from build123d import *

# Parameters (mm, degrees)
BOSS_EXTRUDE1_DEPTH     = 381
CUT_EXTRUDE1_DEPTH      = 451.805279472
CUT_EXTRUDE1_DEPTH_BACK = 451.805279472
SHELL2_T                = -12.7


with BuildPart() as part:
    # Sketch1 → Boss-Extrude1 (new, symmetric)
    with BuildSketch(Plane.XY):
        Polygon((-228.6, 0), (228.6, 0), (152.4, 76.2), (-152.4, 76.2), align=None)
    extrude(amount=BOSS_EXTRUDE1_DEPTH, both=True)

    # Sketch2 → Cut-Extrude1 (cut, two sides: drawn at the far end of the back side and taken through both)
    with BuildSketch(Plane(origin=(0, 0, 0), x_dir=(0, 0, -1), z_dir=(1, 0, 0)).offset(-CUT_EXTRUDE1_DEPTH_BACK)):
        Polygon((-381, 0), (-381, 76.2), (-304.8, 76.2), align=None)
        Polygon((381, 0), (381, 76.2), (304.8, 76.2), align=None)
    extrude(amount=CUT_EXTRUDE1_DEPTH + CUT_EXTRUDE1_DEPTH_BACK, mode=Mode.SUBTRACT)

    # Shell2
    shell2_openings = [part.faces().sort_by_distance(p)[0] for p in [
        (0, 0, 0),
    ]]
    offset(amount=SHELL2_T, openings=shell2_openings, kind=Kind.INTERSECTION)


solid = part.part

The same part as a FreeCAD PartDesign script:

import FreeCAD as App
import Part
import Sketcher

V = App.Vector
Q = App.Units.Quantity


def faces_at(feature, points):
    """Names of the faces that lie closest to the given points."""
    faces = feature.Shape.Faces
    near = lambda p: min(range(len(faces)), key=lambda i: faces[i].distToShape(Part.Vertex(*p))[0])
    return sorted({f"Face{near(p) + 1}" for p in points})


def add_polygon(sketch, points):
    """Adds a closed chain of lines whose ends are joined by coincident constraints."""
    first, n = sketch.GeometryCount, len(points)
    for a, b in zip(points, points[1:] + points[:1]):
        sketch.addGeometry(Part.LineSegment(App.Vector(*a, 0), App.Vector(*b, 0)), False)
    for i in range(n):
        sketch.addConstraint(Sketcher.Constraint("Coincident", first + i, 2, first + (i + 1) % n, 1))

doc = App.newDocument("Part")
body = doc.addObject("PartDesign::Body", "Body")

sketch1 = body.newObject("Sketcher::SketchObject", "Sketch")
sketch1.AttachmentSupport = (doc.getObject("XY_Plane"), [""])
sketch1.MapMode = "FlatFace"
add_polygon(sketch1, [(-229, 0), (229, 0), (152, 76), (-152, 76)])
sketch1.addConstraint([
    Sketcher.Constraint("Horizontal", 0),
    Sketcher.Constraint("Horizontal", 2),
    Sketcher.Constraint("Symmetric", 0, 2, 3, 2, -1, 1),
    Sketcher.Constraint("Perpendicular", 1, 3),
    Sketcher.Constraint("Equal", 1, 3),
    Sketcher.Constraint("DistanceX", 0, 1, 0, 2, Q("18 in")),
    Sketcher.Constraint("DistanceX", 2, 2, 2, 1, Q("12 in")),
])
pad1 = body.newObject("PartDesign::Pad", "Pad")
pad1.Profile = sketch1
pad1.Length = Q("30 in")
pad1.Midplane = True

sketch2 = body.newObject("Sketcher::SketchObject", "Sketch001")
sketch2.AttachmentSupport = (doc.getObject("YZ_Plane"), [""])
sketch2.MapMode = "FlatFace"
add_polygon(sketch2, [(76, 381), (0, 381), (76, 305)])
add_polygon(sketch2, [(0, -381), (76, -381), (76, -305)])
sketch2.addConstraint([
    Sketcher.Constraint("Horizontal", 0),
    Sketcher.Constraint("Vertical", 2),
    Sketcher.Constraint("Horizontal", 3),
    Sketcher.Constraint("Vertical", 4),
    Sketcher.Constraint("Symmetric", 0, 2, 5, 2, -1, 1),
    Sketcher.Constraint("Symmetric", 1, 2, 4, 2, -1),
    Sketcher.Constraint("PointOnObject", 0, 2, -2),
    Sketcher.Constraint("Perpendicular", 1, 5),
    Sketcher.Constraint("DistanceX", 0, 2, 0, 1, Q("3 in")),
    Sketcher.Constraint("DistanceY", -1, 1, 0, 2, Q("15 in")),
])
pocket1 = body.newObject("PartDesign::Pocket", "Pocket")
pocket1.Profile = sketch2
pocket1.Type = "ThroughAll"
pocket1.Midplane = True
doc.recompute()

thickness = body.newObject("PartDesign::Thickness", "Thickness")
thickness.Base = (pocket1, faces_at(pocket1, [(0, 0, 0)]))
thickness.Value = Q("0.5 in")
thickness.Reversed = True
thickness.Join = "Intersection"

doc.recompute()
